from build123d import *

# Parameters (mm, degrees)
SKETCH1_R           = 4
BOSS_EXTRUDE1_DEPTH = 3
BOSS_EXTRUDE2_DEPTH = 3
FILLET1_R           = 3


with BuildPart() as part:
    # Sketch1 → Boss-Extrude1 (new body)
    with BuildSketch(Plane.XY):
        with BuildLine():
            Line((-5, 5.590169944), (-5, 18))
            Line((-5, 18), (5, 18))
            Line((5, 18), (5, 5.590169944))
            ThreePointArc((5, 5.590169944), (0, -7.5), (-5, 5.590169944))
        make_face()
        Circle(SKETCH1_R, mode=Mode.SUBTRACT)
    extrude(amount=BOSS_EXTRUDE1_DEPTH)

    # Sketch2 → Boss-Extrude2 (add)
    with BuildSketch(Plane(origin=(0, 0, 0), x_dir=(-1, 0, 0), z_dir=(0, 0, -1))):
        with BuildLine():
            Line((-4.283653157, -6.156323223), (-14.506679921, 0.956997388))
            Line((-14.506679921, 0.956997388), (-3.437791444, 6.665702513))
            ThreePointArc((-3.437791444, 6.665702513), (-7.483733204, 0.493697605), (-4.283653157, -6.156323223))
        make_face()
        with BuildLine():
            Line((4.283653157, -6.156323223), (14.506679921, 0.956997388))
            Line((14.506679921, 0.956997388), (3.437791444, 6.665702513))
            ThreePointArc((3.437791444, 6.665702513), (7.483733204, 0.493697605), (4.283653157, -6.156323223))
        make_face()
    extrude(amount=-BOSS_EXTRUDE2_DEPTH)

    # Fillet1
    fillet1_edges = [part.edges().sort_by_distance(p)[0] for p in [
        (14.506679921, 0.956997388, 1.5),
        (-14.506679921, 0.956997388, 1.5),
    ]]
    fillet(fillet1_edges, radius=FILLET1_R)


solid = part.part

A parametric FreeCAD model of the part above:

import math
import FreeCAD as App
import Part
import Sketcher
from FreeCAD import Vector


def edges_at(feature, points):
    """Names of the edges that pass closest to the given points."""
    edges = feature.Shape.Edges
    near = lambda p: min(range(len(edges)), key=lambda i: edges[i].distToShape(Part.Vertex(*p))[0])
    return sorted({f"Edge{near(p) + 1}" for p in points})

doc = App.newDocument("Part")
body = doc.addObject("PartDesign::Body", "Body")

# Sketch on XY plane
sketch1 = body.newObject("Sketcher::SketchObject", "Sketch")
sketch1.AttachmentSupport = (doc.getObject("XY_Plane"), [""])
sketch1.MapMode = "FlatFace"
sketch1.addGeometry([
    Part.LineSegment(Vector(-5, 18, 0), Vector(-5, 5.6, 0)),  # 0
    Part.ArcOfCircle(Part.Circle(Vector(0, 0, 0), Vector(0, 0, 1), 7.5), math.radians(132), math.radians(408)),  # 1
    Part.LineSegment(Vector(5, 5.6, 0), Vector(5, 18, 0)),  # 2
    Part.LineSegment(Vector(5, 18, 0), Vector(-5, 18, 0)),  # 3
    Part.Circle(Vector(0, 0, 0), Vector(0, 0, 1), 4),  # 4
], False)
sketch1.addConstraint([
    Sketcher.Constraint("Coincident", 0, 2, 1, 1),
    Sketcher.Constraint("Coincident", 1, 2, 2, 1),
    Sketcher.Constraint("Coincident", 2, 2, 3, 1),
    Sketcher.Constraint("Coincident", 3, 2, 0, 1),
    Sketcher.Constraint("Vertical", 0),
    Sketcher.Constraint("Vertical", 2),
    Sketcher.Constraint("Horizontal", 3),
    Sketcher.Constraint("Coincident", 1, 3, -1, 1),
    Sketcher.Constraint("Coincident", 4, 3, -1, 1),
    Sketcher.Constraint("Horizontal", 0, 2, 1, 2),
    Sketcher.Constraint("Diameter", 4, 8.0),
    Sketcher.Constraint("Radius", 1, 7.5),
    Sketcher.Constraint("DistanceX", 3, 2, 3, 1, 10.0),
    Sketcher.Constraint("DistanceY", -1, 1, 2, 2, 18.0),
])
pad1 = body.newObject("PartDesign::Pad", "Pad")
pad1.Profile = sketch1
pad1.Length = 3

# Sketch on XY plane
sketch2 = body.newObject("Sketcher::SketchObject", "Sketch001")
sketch2.AttachmentSupport = (doc.getObject("XY_Plane"), [""])
sketch2.MapMode = "FlatFace"
sketch2.addGeometry([
    Part.LineSegment(Vector(15, 1, 0), Vector(4, -6, 0)),  # 0
    Part.ArcOfCircle(Part.Circle(Vector(0, 0, 0), Vector(0, 0, 1), 8), math.radians(-55), math.radians(63)),  # 1
    Part.LineSegment(Vector(3, 7, 0), Vector(15, 1, 0)),  # 2
    Part.LineSegment(Vector(-4, -6, 0), Vector(-15, 1, 0)),  # 3
    Part.LineSegment(Vector(-15, 1, 0), Vector(-3, 7, 0)),  # 4
    Part.ArcOfCircle(Part.Circle(Vector(0, 0, 0), Vector(0, 0, 1), 8), math.radians(117), math.radians(235)),  # 5
], False)
sketch2.addConstraint([
    Sketcher.Constraint("Tangent", 0, 2, 1, 1),
    Sketcher.Constraint("Tangent", 1, 2, 2, 1),
    Sketcher.Constraint("Coincident", 2, 2, 0, 1),
    Sketcher.Constraint("Coincident", 3, 2, 4, 1),
    Sketcher.Constraint("Tangent", 4, 2, 5, 1),
    Sketcher.Constraint("Tangent", 5, 2, 3, 1),
    Sketcher.Constraint("Coincident", 1, 3, -1, 1),
    Sketcher.Constraint("Coincident", 5, 3, -1, 1),
    Sketcher.Constraint("Equal", 1, 5),
    Sketcher.Constraint("Symmetric", 2, 2, 3, 2, -2),
    Sketcher.Constraint("Radius", 1, 7.5),
    Sketcher.Constraint("Distance", 0, 12.454301),
    Sketcher.Constraint("DistanceX", -1, 1, 1, 2, 3.437791),
])
pad2 = body.newObject("PartDesign::Pad", "Pad001")
pad2.Profile = sketch2
pad2.Length = 3
doc.recompute()

fillet = body.newObject("PartDesign::Fillet", "Fillet")
fillet.Base = (pad2, edges_at(pad2, [(14.507, 0.957, 1.5), (-14.507, 0.957, 1.5)]))
fillet.Radius = 3

doc.recompute()
